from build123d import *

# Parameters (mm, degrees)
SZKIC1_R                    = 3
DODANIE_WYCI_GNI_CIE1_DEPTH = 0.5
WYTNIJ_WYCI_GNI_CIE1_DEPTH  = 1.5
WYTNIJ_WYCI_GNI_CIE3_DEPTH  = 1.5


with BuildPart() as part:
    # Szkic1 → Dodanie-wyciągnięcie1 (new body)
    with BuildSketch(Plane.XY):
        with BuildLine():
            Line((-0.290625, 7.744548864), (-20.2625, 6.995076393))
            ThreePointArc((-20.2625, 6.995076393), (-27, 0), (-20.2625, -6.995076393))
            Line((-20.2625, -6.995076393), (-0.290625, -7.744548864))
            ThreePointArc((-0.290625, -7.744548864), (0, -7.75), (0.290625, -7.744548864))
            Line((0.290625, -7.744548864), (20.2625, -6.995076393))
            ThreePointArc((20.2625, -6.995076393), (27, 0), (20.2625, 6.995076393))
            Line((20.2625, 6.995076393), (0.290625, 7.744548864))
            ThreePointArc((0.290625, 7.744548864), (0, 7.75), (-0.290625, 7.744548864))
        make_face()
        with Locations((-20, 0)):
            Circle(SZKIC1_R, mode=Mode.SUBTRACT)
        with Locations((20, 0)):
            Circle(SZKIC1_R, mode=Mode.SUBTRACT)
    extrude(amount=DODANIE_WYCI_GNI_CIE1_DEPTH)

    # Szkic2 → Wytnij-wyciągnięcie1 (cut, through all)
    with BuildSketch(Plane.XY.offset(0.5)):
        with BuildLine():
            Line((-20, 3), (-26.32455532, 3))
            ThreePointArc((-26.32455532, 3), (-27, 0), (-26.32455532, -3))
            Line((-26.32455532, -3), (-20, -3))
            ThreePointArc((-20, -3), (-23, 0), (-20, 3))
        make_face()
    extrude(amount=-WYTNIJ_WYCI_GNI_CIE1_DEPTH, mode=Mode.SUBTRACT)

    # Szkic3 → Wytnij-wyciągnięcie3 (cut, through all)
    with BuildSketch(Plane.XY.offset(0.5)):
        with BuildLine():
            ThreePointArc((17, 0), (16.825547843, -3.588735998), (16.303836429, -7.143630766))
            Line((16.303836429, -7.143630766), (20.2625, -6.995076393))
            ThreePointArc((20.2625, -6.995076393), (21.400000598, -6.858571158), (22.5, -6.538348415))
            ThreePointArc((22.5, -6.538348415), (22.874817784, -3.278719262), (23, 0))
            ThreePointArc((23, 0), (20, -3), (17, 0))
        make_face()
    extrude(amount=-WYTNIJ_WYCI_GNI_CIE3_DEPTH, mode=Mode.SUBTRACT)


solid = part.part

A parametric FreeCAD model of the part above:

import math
import FreeCAD as App
import Part
import Sketcher
Q = App.Units.Quantity

doc = App.newDocument("Part")
body = doc.addObject("PartDesign::Body", "Body")

# Sketch on XY plane
sketch1 = body.newObject("Sketcher::SketchObject", "Sketch")
sketch1.AttachmentSupport = (doc.getObject("XY_Plane"), [""])
sketch1.MapMode = "FlatFace"
sketch1.addGeometry([
    Part.LineSegment(App.Vector(-0.3, 7.7, 0), App.Vector(-20.3, 7, 0)),  # 0
    Part.ArcOfCircle(Part.Circle(App.Vector(-20, 0, 0), App.Vector(0, 0, 1), 7), math.radians(92), math.radians(268)),  # 1
    Part.LineSegment(App.Vector(-20.3, -7, 0), App.Vector(-0.3, -7.7, 0)),  # 2
    Part.ArcOfCircle(Part.Circle(App.Vector(0, 0, 0), App.Vector(0, 0, 1), 7.7), math.radians(-92.15), math.radians(-87.85)),  # 3
    Part.LineSegment(App.Vector(0.3, -7.7, 0), App.Vector(20.3, -7, 0)),  # 4
    Part.ArcOfCircle(Part.Circle(App.Vector(20, 0, 0), App.Vector(0, 0, 1), 7), math.radians(-88), math.radians(88)),  # 5
    Part.LineSegment(App.Vector(20.3, 7, 0), App.Vector(0.3, 7.7, 0)),  # 6
    Part.ArcOfCircle(Part.Circle(App.Vector(0, 0, 0), App.Vector(0, 0, 1), 7.7), math.radians(87.85), math.radians(92.15)),  # 7
    Part.Circle(App.Vector(-20, 0, 0), App.Vector(0, 0, 1), 3),  # 8
    Part.Circle(App.Vector(20, 0, 0), App.Vector(0, 0, 1), 3),  # 9
], False)
sketch1.addConstraint([
    Sketcher.Constraint("Tangent", 0, 2, 1, 1),
    Sketcher.Constraint("Tangent", 1, 2, 2, 1),
    Sketcher.Constraint("Tangent", 2, 2, 3, 1),
    Sketcher.Constraint("Tangent", 3, 2, 4, 1),
    Sketcher.Constraint("Tangent", 4, 2, 5, 1),
    Sketcher.Constraint("Tangent", 5, 2, 6, 1),
    Sketcher.Constraint("Tangent", 6, 2, 7, 1),
    Sketcher.Constraint("Tangent", 7, 2, 0, 1),
    Sketcher.Constraint("Coincident", 3, 3, -1, 1),
    Sketcher.Constraint("Coincident", 7, 3, -1, 1),
    Sketcher.Constraint("Coincident", 8, 3, 1, 3),
    Sketcher.Constraint("Coincident", 9, 3, 5, 3),
    Sketcher.Constraint("Equal", 1, 5),
    Sketcher.Constraint("Equal", 3, 7),
    Sketcher.Constraint("Equal", 8, 9),
    Sketcher.Constraint("Symmetric", 1, 3, 5, 3, -1, 1),
    Sketcher.Constraint("PointOnObject", 1, 3, -1),
    Sketcher.Constraint("Diameter", 8, Q("6 mm")),
    Sketcher.Constraint("Radius", 1, Q("7 mm")),
    Sketcher.Constraint("Radius", 3, Q("7.75 mm")),
    Sketcher.Constraint("DistanceX", 1, 3, -1, 1, Q("20 mm")),
])
pad1 = body.newObject("PartDesign::Pad", "Pad")
pad1.Profile = sketch1
pad1.Length = 0.5

# Sketch on XY plane
sketch2 = body.newObject("Sketcher::SketchObject", "Sketch001")
sketch2.AttachmentSupport = (doc.getObject("XY_Plane"), [""])
sketch2.MapMode = "FlatFace"
sketch2.AttachmentOffset = App.Placement(App.Vector(0, 0, 0.5), App.Rotation())
sketch2.addGeometry([
    Part.LineSegment(App.Vector(-20, 3, 0), App.Vector(-26.3, 3, 0)),
    Part.ArcOfCircle(Part.Circle(App.Vector(-20, 0, 0), App.Vector(0, 0, 1), 7), math.radians(155), math.radians(205)),
    Part.LineSegment(App.Vector(-26.3, -3, 0), App.Vector(-20, -3, 0)),
    Part.ArcOfCircle(Part.Circle(App.Vector(-20, 0, 0), App.Vector(0, 0, 1), 3), math.radians(90), math.radians(270)),
], False)
sketch2.addConstraint([
    Sketcher.Constraint("Coincident", 0, 2, 1, 1),
    Sketcher.Constraint("Coincident", 1, 2, 2, 1),
    Sketcher.Constraint("Tangent", 2, 2, 3, 2),
    Sketcher.Constraint("Tangent", 3, 1, 0, 1),
    Sketcher.Constraint("Horizontal", 0),
    Sketcher.Constraint("Horizontal", 2),
    Sketcher.Constraint("Coincident", 3, 3, 1, 3),
    Sketcher.Constraint("PointOnObject", 1, 3, -1),
    Sketcher.Constraint("Radius", 1, Q("7 mm")),
    Sketcher.Constraint("Radius", 3, Q("3 mm")),
    Sketcher.Constraint("DistanceX", 1, 3, -1, 1, Q("20 mm")),
])
pocket1 = body.newObject("PartDesign::Pocket", "Pocket")
pocket1.Profile = sketch2
pocket1.Type = "ThroughAll"

# Sketch on XY plane
sketch3 = body.newObject("Sketcher::SketchObject", "Sketch002")
sketch3.AttachmentSupport = (doc.getObject("XY_Plane"), [""])
sketch3.MapMode = "FlatFace"
sketch3.AttachmentOffset = App.Placement(App.Vector(0, 0, 0.5), App.Rotation())
sketch3.addGeometry([
    Part.ArcOfCircle(Part.Circle(App.Vector(-20, 0, 0), App.Vector(0, 0, 1), 37), math.radians(-11.13), math.radians(0)),  # 0
    Part.LineSegment(App.Vector(16.3, -7.1, 0), App.Vector(20.3, -7, 0)),  # 1
    Part.ArcOfCircle(Part.Circle(App.Vector(20, 0, 0), App.Vector(0, 0, 1), 7), math.radians(-87.85), math.radians(-69.08)),  # 2
    Part.ArcOfCircle(Part.Circle(App.Vector(-20, 0, 0), App.Vector(0, 0, 1), 43), math.radians(-8.75), math.radians(0)),  # 3
    Part.ArcOfCircle(Part.Circle(App.Vector(20, 0, 0), App.Vector(0, 0, 1), 3), math.radians(180), math.radians(360)),  # 4
], False)
sketch3.addConstraint([
    Sketcher.Constraint("Coincident", 0, 1, 1, 1),
    Sketcher.Constraint("Tangent", 1, 2, 2, 1),
    Sketcher.Constraint("Coincident", 2, 2, 3, 1),
    Sketcher.Constraint("Tangent", 3, 2, 4, 2),
    Sketcher.Constraint("Tangent", 4, 1, 0, 2),
    Sketcher.Constraint("Coincident", 3, 3, 0, 3),
    Sketcher.Constraint("Coincident", 4, 3, 2, 3),
    Sketcher.Constraint("Symmetric", 0, 3, 2, 3, -1, 1),
    Sketcher.Constraint("PointOnObject", 0, 3, -1),
    Sketcher.Constraint("Radius", 0, Q("37 mm")),
    Sketcher.Constraint("Radius", 2, Q("7 mm")),
    Sketcher.Constraint("Radius", 3, Q("43 mm")),
    Sketcher.Constraint("DistanceX", -1, 1, 1, 2, Q("20.2625 mm")),
])
pocket2 = body.newObject("PartDesign::Pocket", "Pocket001")
pocket2.Profile = sketch3
pocket2.Type = "ThroughAll"

doc.recompute()
